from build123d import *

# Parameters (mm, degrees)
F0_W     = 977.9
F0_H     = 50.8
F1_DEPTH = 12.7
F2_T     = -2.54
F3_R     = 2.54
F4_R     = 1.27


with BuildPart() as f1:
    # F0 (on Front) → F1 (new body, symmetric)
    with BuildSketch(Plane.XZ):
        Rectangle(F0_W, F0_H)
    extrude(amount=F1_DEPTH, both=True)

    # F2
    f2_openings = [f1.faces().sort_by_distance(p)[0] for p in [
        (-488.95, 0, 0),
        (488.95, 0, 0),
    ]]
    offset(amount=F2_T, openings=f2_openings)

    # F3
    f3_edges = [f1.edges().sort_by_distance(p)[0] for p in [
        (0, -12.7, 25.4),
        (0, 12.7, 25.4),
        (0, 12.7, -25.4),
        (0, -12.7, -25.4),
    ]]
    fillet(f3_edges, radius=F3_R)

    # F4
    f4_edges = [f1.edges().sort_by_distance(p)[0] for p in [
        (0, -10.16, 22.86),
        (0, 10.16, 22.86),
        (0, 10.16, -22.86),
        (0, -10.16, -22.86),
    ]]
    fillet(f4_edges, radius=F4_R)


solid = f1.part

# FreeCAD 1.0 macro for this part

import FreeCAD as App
import Part
import Sketcher

V = App.Vector
Q = App.Units.Quantity


def edges_at(feature, points):
    """Names of the edges that pass closest to the given points."""
    edges = feature.Shape.Edges
    near = lambda p: min(range(len(edges)), key=lambda i: edges[i].distToShape(Part.Vertex(*p))[0])
    return sorted({f"Edge{near(p) + 1}" for p in points})


def faces_at(feature, points):
    """Names of the faces that lie closest to the given points."""
    faces = feature.Shape.Faces
    near = lambda p: min(range(len(faces)), key=lambda i: faces[i].distToShape(Part.Vertex(*p))[0])
    return sorted({f"Face{near(p) + 1}" for p in points})


def add_polygon(sketch, points):
    """Adds a closed chain of lines whose ends are joined by coincident constraints."""
    first, n = sketch.GeometryCount, len(points)
    for a, b in zip(points, points[1:] + points[:1]):
        sketch.addGeometry(Part.LineSegment(App.Vector(*a, 0), App.Vector(*b, 0)), False)
    for i in range(n):
        sketch.addConstraint(Sketcher.Constraint("Coincident", first + i, 2, first + (i + 1) % n, 1))

doc = App.newDocument("Part")
params = doc.addObject("Spreadsheet::Sheet", "Params")
for row, (alias, value) in enumerate([
    ("sketch1_height", "2 in"),
    ("sketch1_width", "38.5 in"),
    ("pad1_length", "1 in"),
    ("thickness_wall", "0.1 in"),
    ("fillet_radius", "0.1 in"),
    ("fillet2_radius", "0.05 in"),
], start=1):
    params.set(f"A{row}", alias)
    params.set(f"B{row}", "=" + value)
    params.setAlias(f"B{row}", alias)

body = doc.addObject("PartDesign::Body", "Body")

sketch1 = doc.addObject("Sketcher::SketchObject", "Sketch")
body.addObject(sketch1)
sketch1.AttachmentSupport = (doc.XZ_Plane, [""])
sketch1.MapMode = "FlatFace"
add_polygon(sketch1, [(-488.95, 25.4), (-488.95, -25.4), (488.95, -25.4), (488.95, 25.4)])
sketch1.addConstraint([
    Sketcher.Constraint("Vertical", 0),
    Sketcher.Constraint("Horizontal", 1),
    Sketcher.Constraint("Vertical", 2),
    Sketcher.Constraint("Horizontal", 3),
    Sketcher.Constraint("Symmetric", 0, 2, 2, 2, -1, 1),
    Sketcher.Constraint("DistanceY", 0, 2, 0, 1, Q("2 in")),
    Sketcher.Constraint("DistanceX", 1, 1, 1, 2, Q("38.5 in")),
])
sketch1.setExpression("Constraints[9]", "Params.sketch1_height")
sketch1.setExpression("Constraints[10]", "Params.sketch1_width")
pad1 = doc.addObject("PartDesign::Pad", "Pad")
body.addObject(pad1)
pad1.Profile = sketch1
pad1.setExpression("Length", "Params.pad1_length")
pad1.Midplane = True
doc.recompute()

thickness = doc.addObject("PartDesign::Thickness", "Thickness")
body.addObject(thickness)
thickness.Base = (pad1, faces_at(pad1, [(-488.95, 0, 0), (488.95, 0, 0)]))
thickness.setExpression("Value", "Params.thickness_wall")
thickness.Reversed = True
thickness.Join = "Arc"
doc.recompute()

fillet = doc.addObject("PartDesign::Fillet", "Fillet")
body.addObject(fillet)
fillet.Base = (thickness, edges_at(thickness, [
    (0, -12.7, 25.4),
    (0, 12.7, 25.4),
    (0, 12.7, -25.4),
    (0, -12.7, -25.4),
]))
fillet.setExpression("Radius", "Params.fillet_radius")
doc.recompute()

fillet2 = doc.addObject("PartDesign::Fillet", "Fillet001")
body.addObject(fillet2)
fillet2.Base = (fillet, edges_at(fillet, [
    (0, -10.16, 22.86),
    (0, 10.16, 22.86),
    (0, 10.16, -22.86),
    (0, -10.16, -22.86),
]))
fillet2.setExpression("Radius", "Params.fillet2_radius")

doc.recompute()
